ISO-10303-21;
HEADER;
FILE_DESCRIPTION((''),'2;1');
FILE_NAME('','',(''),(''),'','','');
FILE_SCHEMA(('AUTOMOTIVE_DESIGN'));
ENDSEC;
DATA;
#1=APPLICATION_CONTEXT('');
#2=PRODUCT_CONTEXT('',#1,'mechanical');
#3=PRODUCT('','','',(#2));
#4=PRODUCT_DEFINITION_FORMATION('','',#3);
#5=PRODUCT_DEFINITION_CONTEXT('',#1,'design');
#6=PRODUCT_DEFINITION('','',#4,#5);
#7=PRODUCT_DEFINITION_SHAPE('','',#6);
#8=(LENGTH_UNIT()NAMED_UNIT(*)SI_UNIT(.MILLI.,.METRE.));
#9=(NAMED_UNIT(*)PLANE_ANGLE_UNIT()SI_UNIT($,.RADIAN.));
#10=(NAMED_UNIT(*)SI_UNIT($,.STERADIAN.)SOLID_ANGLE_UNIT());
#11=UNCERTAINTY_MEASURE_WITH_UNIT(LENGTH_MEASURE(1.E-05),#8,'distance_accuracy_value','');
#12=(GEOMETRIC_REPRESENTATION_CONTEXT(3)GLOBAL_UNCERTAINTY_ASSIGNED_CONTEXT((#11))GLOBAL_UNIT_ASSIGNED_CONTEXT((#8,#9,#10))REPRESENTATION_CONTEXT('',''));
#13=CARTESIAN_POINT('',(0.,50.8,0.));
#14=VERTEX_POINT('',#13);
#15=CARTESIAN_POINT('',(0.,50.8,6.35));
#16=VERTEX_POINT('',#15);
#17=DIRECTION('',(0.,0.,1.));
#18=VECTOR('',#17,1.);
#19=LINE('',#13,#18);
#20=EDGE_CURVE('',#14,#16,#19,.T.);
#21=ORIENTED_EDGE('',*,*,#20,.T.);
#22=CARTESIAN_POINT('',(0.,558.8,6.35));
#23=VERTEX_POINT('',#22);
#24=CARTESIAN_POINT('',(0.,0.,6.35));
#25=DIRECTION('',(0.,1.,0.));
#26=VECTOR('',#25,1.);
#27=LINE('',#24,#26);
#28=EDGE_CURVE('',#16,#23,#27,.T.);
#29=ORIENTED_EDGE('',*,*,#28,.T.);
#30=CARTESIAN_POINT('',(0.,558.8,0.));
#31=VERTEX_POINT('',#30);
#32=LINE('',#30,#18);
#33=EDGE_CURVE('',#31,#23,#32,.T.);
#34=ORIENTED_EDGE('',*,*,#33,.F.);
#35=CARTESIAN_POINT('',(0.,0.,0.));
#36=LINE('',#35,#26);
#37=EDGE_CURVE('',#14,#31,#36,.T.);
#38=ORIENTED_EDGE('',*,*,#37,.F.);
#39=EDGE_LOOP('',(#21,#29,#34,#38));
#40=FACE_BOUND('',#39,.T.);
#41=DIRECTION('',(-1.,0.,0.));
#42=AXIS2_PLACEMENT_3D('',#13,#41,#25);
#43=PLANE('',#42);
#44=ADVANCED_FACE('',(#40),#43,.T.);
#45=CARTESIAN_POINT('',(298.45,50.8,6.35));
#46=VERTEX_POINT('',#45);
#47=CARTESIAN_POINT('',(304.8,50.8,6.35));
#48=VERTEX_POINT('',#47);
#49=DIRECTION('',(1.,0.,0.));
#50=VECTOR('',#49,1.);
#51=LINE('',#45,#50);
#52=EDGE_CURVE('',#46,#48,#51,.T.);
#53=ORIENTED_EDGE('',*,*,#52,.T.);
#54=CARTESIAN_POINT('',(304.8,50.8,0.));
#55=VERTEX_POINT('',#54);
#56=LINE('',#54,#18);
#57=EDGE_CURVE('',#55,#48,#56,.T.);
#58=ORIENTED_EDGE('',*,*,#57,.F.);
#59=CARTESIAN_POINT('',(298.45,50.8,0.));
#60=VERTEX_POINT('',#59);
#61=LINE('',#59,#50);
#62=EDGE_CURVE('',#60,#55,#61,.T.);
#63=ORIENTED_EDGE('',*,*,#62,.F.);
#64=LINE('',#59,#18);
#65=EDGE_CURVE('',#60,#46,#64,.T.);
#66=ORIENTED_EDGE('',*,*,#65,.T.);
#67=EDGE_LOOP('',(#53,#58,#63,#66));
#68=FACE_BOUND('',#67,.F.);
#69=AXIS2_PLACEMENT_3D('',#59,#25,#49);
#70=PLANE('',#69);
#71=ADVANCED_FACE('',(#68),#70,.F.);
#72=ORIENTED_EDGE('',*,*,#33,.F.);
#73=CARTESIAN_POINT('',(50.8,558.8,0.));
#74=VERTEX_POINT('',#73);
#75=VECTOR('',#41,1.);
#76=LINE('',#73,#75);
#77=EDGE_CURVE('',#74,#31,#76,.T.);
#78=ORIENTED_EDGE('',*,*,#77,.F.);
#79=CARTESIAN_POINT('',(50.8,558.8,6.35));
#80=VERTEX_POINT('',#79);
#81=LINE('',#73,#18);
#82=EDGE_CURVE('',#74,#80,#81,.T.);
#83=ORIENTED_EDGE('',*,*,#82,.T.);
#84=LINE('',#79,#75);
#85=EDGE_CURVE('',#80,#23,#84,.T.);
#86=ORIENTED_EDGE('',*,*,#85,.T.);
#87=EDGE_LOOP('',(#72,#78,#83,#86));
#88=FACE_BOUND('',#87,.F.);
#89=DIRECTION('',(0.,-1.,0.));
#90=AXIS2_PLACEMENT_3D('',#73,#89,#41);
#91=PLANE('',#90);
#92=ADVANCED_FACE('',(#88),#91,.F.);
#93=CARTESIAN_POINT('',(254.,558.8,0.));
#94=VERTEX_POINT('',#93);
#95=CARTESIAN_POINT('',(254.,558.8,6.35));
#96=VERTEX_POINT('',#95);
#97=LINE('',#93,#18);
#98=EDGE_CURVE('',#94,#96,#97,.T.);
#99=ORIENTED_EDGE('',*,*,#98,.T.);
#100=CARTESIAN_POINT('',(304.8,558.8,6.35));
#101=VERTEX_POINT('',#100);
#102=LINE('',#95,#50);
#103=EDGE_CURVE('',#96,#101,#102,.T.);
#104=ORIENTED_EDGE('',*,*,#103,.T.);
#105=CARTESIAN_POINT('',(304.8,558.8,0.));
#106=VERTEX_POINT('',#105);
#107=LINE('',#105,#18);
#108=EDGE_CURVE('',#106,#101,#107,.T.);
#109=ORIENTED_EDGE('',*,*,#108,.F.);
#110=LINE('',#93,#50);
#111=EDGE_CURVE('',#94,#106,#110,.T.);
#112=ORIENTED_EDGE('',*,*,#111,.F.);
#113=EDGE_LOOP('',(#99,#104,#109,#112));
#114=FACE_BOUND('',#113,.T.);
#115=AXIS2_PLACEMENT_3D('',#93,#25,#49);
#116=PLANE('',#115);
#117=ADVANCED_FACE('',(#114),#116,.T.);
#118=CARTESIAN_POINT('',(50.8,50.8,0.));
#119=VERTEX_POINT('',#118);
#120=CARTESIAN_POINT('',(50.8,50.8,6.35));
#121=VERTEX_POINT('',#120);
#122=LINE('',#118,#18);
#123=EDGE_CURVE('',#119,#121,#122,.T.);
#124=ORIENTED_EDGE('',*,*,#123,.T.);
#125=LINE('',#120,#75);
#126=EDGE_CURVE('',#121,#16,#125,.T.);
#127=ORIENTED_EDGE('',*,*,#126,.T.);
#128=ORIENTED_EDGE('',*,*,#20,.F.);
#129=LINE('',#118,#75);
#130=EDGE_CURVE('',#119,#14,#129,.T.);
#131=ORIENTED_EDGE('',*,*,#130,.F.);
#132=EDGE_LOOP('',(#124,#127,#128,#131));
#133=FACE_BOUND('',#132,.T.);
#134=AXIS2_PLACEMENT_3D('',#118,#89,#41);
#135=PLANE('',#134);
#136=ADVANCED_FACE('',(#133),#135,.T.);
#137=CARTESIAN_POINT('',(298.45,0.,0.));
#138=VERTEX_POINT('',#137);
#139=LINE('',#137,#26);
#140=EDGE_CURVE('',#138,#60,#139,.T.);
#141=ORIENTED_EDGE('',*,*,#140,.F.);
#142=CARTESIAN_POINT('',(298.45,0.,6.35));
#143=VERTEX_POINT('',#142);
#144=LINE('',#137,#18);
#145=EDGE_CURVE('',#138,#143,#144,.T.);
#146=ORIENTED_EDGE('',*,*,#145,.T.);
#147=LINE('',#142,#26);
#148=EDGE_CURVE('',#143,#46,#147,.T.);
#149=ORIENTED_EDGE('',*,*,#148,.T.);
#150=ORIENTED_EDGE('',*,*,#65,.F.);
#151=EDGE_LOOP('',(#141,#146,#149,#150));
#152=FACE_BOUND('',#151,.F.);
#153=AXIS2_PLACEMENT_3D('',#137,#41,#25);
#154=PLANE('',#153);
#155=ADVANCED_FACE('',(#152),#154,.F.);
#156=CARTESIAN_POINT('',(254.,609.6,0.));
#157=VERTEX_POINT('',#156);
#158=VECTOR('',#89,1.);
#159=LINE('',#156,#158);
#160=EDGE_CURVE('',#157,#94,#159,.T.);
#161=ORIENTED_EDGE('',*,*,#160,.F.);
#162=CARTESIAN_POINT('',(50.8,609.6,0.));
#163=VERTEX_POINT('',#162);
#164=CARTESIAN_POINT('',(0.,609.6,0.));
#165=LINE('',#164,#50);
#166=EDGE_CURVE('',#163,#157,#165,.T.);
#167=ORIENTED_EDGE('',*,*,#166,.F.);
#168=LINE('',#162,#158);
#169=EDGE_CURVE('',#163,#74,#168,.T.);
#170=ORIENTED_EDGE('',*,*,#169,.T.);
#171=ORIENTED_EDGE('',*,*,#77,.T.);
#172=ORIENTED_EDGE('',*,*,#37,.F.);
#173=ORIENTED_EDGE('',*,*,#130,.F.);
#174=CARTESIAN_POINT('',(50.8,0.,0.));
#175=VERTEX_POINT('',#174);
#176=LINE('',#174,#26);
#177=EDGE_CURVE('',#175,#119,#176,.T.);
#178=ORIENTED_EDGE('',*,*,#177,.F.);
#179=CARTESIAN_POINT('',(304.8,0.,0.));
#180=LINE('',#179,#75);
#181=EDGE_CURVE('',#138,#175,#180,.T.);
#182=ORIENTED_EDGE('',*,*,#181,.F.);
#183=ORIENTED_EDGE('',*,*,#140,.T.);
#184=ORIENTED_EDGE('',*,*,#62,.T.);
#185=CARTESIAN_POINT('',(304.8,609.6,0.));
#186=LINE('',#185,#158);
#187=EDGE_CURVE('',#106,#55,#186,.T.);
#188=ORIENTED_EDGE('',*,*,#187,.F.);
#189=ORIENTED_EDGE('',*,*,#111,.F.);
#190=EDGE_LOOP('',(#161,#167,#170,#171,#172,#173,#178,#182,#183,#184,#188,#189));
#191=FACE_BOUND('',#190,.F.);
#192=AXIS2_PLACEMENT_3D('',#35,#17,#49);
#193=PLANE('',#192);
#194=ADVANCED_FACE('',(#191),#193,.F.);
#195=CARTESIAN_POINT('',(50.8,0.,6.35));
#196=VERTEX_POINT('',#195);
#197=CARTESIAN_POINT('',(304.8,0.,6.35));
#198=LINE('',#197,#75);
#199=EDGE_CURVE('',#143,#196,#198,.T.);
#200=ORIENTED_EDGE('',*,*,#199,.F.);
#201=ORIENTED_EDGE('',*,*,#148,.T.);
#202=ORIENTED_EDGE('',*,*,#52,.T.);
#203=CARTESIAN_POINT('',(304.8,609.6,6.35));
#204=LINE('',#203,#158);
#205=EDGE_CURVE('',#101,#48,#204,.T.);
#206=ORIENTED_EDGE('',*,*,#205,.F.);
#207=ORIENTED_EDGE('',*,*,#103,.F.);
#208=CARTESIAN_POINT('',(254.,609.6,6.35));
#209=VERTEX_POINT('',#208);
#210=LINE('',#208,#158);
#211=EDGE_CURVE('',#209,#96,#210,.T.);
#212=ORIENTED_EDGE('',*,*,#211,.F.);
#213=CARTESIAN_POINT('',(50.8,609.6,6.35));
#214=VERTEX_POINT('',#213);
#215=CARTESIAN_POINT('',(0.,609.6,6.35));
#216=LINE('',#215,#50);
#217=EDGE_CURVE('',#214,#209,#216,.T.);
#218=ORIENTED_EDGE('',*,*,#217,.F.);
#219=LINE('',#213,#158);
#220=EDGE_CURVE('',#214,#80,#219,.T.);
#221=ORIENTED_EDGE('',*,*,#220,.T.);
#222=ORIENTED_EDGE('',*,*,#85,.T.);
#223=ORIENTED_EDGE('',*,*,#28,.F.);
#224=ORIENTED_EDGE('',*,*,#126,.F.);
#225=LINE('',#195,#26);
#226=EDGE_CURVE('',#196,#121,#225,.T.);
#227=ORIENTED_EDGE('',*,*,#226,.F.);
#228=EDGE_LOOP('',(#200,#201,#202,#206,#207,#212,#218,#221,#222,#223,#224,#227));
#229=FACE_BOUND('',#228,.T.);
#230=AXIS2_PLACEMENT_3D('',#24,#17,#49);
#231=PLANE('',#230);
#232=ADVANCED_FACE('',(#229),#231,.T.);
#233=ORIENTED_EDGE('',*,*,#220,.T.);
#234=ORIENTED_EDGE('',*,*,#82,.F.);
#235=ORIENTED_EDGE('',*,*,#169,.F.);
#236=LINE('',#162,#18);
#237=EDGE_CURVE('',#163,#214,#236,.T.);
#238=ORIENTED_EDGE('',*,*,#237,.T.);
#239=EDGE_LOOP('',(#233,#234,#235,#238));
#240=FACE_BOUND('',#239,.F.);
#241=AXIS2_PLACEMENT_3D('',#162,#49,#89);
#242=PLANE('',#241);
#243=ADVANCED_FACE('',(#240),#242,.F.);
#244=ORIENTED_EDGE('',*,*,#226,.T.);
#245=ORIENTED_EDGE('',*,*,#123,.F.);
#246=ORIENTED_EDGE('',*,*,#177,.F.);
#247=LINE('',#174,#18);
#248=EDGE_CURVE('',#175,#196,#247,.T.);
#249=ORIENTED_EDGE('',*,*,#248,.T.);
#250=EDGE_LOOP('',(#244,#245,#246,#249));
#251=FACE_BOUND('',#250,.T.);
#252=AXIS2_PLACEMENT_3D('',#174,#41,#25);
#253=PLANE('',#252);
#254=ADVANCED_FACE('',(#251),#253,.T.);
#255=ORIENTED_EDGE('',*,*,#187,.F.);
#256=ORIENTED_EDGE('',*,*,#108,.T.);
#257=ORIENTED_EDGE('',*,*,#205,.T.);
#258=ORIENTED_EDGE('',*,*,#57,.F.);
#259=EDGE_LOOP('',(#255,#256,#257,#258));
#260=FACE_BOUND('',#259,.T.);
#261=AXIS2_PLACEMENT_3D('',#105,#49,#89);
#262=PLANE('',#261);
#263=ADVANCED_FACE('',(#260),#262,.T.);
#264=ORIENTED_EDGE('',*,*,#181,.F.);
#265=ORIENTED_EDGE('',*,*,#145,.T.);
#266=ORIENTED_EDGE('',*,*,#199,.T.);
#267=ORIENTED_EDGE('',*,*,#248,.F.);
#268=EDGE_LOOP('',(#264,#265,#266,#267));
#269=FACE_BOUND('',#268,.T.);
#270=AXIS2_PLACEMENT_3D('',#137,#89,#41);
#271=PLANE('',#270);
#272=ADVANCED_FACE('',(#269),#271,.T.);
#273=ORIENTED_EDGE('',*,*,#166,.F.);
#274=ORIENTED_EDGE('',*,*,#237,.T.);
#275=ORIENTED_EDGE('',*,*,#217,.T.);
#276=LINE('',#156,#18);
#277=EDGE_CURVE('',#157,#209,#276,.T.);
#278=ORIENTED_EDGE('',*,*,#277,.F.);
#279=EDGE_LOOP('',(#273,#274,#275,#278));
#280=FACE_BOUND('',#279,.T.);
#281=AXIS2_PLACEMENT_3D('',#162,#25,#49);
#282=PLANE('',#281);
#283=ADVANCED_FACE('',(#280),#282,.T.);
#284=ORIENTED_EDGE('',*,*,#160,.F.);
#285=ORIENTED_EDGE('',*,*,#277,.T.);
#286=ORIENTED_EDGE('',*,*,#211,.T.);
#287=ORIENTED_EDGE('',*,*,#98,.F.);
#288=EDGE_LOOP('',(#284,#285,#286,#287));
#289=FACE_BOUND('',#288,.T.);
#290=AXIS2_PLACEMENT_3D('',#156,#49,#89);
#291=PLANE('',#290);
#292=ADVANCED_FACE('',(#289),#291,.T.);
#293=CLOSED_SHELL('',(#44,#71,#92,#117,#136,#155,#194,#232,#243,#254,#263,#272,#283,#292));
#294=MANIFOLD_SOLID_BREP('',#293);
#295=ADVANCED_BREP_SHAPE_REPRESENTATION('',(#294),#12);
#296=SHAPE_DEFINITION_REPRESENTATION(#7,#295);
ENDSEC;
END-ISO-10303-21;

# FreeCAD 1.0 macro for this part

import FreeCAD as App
import Part
import Sketcher

V = App.Vector
Q = App.Units.Quantity


def add_polygon(sketch, points):
    """Adds a closed chain of lines whose ends are joined by coincident constraints."""
    first, n = sketch.GeometryCount, len(points)
    for a, b in zip(points, points[1:] + points[:1]):
        sketch.addGeometry(Part.LineSegment(App.Vector(*a, 0), App.Vector(*b, 0)), False)
    for i in range(n):
        sketch.addConstraint(Sketcher.Constraint("Coincident", first + i, 2, first + (i + 1) % n, 1))

doc = App.newDocument("Part")
body = doc.addObject("PartDesign::Body", "Body")

sketch1 = body.newObject("Sketcher::SketchObject", "Sketch")
sketch1.AttachmentSupport = (doc.getObject("XY_Plane"), [""])
sketch1.MapMode = "FlatFace"
add_polygon(sketch1, [(0, 559), (0, 51), (51, 51), (51, 0), (298, 0), (298, 51), (305, 51), (305, 559), (254, 559), (254, 610), (51, 610), (51, 559)])
sketch1.addConstraint([
    Sketcher.Constraint("Vertical", 0),
    Sketcher.Constraint("Horizontal", 1),
    Sketcher.Constraint("Vertical", 2),
    Sketcher.Constraint("Horizontal", 3),
    Sketcher.Constraint("Vertical", 4),
    Sketcher.Constraint("Horizontal", 5),
    Sketcher.Constraint("Vertical", 6),
    Sketcher.Constraint("Horizontal", 7),
    Sketcher.Constraint("Vertical", 8),
    Sketcher.Constraint("Horizontal", 9),
    Sketcher.Constraint("Vertical", 10),
    Sketcher.Constraint("Horizontal", 11),
    Sketcher.Constraint("PointOnObject", 0, 2, -2),
    Sketcher.Constraint("PointOnObject", 2, 2, -1),
    Sketcher.Constraint("Horizontal", 1, 2, 4, 2),
    Sketcher.Constraint("Horizontal", 7, 2, 10, 2),
    Sketcher.Constraint("Vertical", 2, 2, 9, 2),
    Sketcher.Constraint("Equal", 1, 7),
    Sketcher.Constraint("Equal", 11, 2),
    Sketcher.Constraint("Equal", 4, 8),
    Sketcher.Constraint("DistanceX", 1, 1, 1, 2, Q("2 in")),
    Sketcher.Constraint("DistanceX", -1, 1, 5, 2, Q("12 in")),
    Sketcher.Constraint("DistanceY", -1, 1, 8, 2, Q("24 in")),
    Sketcher.Constraint("DistanceX", 5, 1, 5, 2, Q("0.25 in")),
])
pad1 = body.newObject("PartDesign::Pad", "Pad")
pad1.Profile = sketch1
pad1.Length = Q("0.25 in")

doc.recompute()
